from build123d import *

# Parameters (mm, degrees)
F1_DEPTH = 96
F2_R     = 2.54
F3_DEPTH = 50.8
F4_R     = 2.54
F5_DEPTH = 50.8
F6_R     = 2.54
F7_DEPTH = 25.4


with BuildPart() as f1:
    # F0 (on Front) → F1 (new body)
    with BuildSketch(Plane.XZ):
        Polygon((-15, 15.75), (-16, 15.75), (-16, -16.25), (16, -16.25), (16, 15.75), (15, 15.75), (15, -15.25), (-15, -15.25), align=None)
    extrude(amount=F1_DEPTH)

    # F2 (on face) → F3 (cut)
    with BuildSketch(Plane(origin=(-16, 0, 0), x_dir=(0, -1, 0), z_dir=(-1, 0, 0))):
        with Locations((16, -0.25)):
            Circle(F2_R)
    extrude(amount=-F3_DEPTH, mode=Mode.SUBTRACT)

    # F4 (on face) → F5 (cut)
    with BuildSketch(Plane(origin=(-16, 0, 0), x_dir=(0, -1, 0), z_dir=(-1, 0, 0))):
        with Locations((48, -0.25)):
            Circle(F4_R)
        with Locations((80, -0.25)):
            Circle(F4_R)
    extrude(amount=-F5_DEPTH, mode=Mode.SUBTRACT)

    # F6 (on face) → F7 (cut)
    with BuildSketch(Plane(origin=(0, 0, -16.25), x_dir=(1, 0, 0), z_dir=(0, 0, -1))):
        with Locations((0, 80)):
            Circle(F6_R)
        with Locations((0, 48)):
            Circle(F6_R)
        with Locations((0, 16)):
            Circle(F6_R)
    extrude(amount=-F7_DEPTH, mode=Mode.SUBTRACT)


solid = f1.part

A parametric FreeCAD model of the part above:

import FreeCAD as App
import Part
import Sketcher
from FreeCAD import Vector

doc = App.newDocument("Part")
body = doc.addObject("PartDesign::Body", "Body")

sketch1 = body.newObject("Sketcher::SketchObject", "Sketch")
sketch1.AttachmentSupport = (doc.getObject("XZ_Plane"), [""])
sketch1.MapMode = "FlatFace"
sketch1.addGeometry(Part.LineSegment(Vector(-15, 15.8, 0), Vector(-16, 15.8, 0)), False)
sketch1.addGeometry(Part.LineSegment(Vector(-16, 15.8, 0), Vector(-16, -16.2, 0)), False)
sketch1.addGeometry(Part.LineSegment(Vector(-16, -16.2, 0), Vector(16, -16.2, 0)), False)
sketch1.addGeometry(Part.LineSegment(Vector(16, -16.2, 0), Vector(16, 15.8, 0)), False)
sketch1.addGeometry(Part.LineSegment(Vector(16, 15.8, 0), Vector(15, 15.8, 0)), False)
sketch1.addGeometry(Part.LineSegment(Vector(15, 15.8, 0), Vector(15, -15.2, 0)), False)
sketch1.addGeometry(Part.LineSegment(Vector(15, -15.2, 0), Vector(-15, -15.2, 0)), False)
sketch1.addGeometry(Part.LineSegment(Vector(-15, -15.2, 0), Vector(-15, 15.8, 0)), False)
sketch1.addConstraint(Sketcher.Constraint("Coincident", 0, 2, 1, 1))
sketch1.addConstraint(Sketcher.Constraint("Coincident", 1, 2, 2, 1))
sketch1.addConstraint(Sketcher.Constraint("Coincident", 2, 2, 3, 1))
sketch1.addConstraint(Sketcher.Constraint("Coincident", 3, 2, 4, 1))
sketch1.addConstraint(Sketcher.Constraint("Coincident", 4, 2, 5, 1))
sketch1.addConstraint(Sketcher.Constraint("Coincident", 5, 2, 6, 1))
sketch1.addConstraint(Sketcher.Constraint("Coincident", 6, 2, 7, 1))
sketch1.addConstraint(Sketcher.Constraint("Coincident", 7, 2, 0, 1))
sketch1.addConstraint(Sketcher.Constraint("Horizontal", 0))
sketch1.addConstraint(Sketcher.Constraint("Vertical", 1))
sketch1.addConstraint(Sketcher.Constraint("Horizontal", 2))
sketch1.addConstraint(Sketcher.Constraint("Vertical", 3))
sketch1.addConstraint(Sketcher.Constraint("Horizontal", 4))
sketch1.addConstraint(Sketcher.Constraint("Vertical", 5))
sketch1.addConstraint(Sketcher.Constraint("Horizontal", 6))
sketch1.addConstraint(Sketcher.Constraint("Vertical", 7))
sketch1.addConstraint(Sketcher.Constraint("Symmetric", 0, 2, 3, 2, -2))
sketch1.addConstraint(Sketcher.Constraint("Equal", 0, 4))
sketch1.addConstraint(Sketcher.Constraint("Equal", 2, 1))
sketch1.addConstraint(Sketcher.Constraint("DistanceX", 0, 2, 0, 1, 1.0))
sketch1.addConstraint(Sketcher.Constraint("DistanceX", 2, 1, 2, 2, 32.0))
sketch1.addConstraint(Sketcher.Constraint("DistanceY", 5, 2, 5, 1, 31.0))
sketch1.addConstraint(Sketcher.Constraint("DistanceY", -1, 1, 0, 2, 15.75))
pad1 = body.newObject("PartDesign::Pad", "Pad")
pad1.Profile = sketch1
pad1.Length = 96

sketch2 = body.newObject("Sketcher::SketchObject", "Sketch001")
sketch2.AttachmentSupport = (doc.getObject("YZ_Plane"), [""])
sketch2.MapMode = "FlatFace"
sketch2.AttachmentOffset = App.Placement(Vector(0, 0, -16), App.Rotation())
sketch2.addGeometry(Part.Circle(Vector(-16, -0.2, 0), Vector(0, 0, 1), 2.5), False)
sketch2.addConstraint(Sketcher.Constraint("Diameter", 0, 5.08))
sketch2.addConstraint(Sketcher.Constraint("DistanceX", 0, 3, -1, 1, 16.0))
sketch2.addConstraint(Sketcher.Constraint("DistanceY", 0, 3, -1, 1, 0.25))
pocket1 = body.newObject("PartDesign::Pocket", "Pocket")
pocket1.Profile = sketch2
pocket1.Length = 50.8
pocket1.Reversed = True

sketch3 = body.newObject("Sketcher::SketchObject", "Sketch002")
sketch3.AttachmentSupport = (doc.getObject("YZ_Plane"), [""])
sketch3.MapMode = "FlatFace"
sketch3.AttachmentOffset = App.Placement(Vector(0, 0, -16), App.Rotation())
sketch3.addGeometry(Part.Circle(Vector(-48, -0.2, 0), Vector(0, 0, 1), 2.5), False)
sketch3.addGeometry(Part.Circle(Vector(-80, -0.2, 0), Vector(0, 0, 1), 2.5), False)
sketch3.addConstraint(Sketcher.Constraint("Equal", 0, 1))
sketch3.addConstraint(Sketcher.Constraint("Horizontal", 0, 3, 1, 3))
sketch3.addConstraint(Sketcher.Constraint("Diameter", 0, 5.08))
sketch3.addConstraint(Sketcher.Constraint("DistanceX", 0, 3, -1, 1, 48.0))
sketch3.addConstraint(Sketcher.Constraint("DistanceX", 1, 3, -1, 1, 80.0))
sketch3.addConstraint(Sketcher.Constraint("DistanceY", 0, 3, -1, 1, 0.25))
pocket2 = body.newObject("PartDesign::Pocket", "Pocket001")
pocket2.Profile = sketch3
pocket2.Length = 50.8
pocket2.Reversed = True

sketch4 = body.newObject("Sketcher::SketchObject", "Sketch003")
sketch4.AttachmentSupport = (doc.getObject("XY_Plane"), [""])
sketch4.MapMode = "FlatFace"
sketch4.AttachmentOffset = App.Placement(Vector(0, 0, -16.25), App.Rotation())
sketch4.addGeometry(Part.Circle(Vector(0, -80, 0), Vector(0, 0, 1), 2.5), False)
sketch4.addGeometry(Part.Circle(Vector(0, -48, 0), Vector(0, 0, 1), 2.5), False)
sketch4.addGeometry(Part.Circle(Vector(0, -16, 0), Vector(0, 0, 1), 2.5), False)
sketch4.addConstraint(Sketcher.Constraint("Equal", 0, 1))
sketch4.addConstraint(Sketcher.Constraint("Equal", 1, 2))
sketch4.addConstraint(Sketcher.Constraint("PointOnObject", 0, 3, -2))
sketch4.addConstraint(Sketcher.Constraint("PointOnObject", 1, 3, -2))
sketch4.addConstraint(Sketcher.Constraint("PointOnObject", 2, 3, -2))
sketch4.addConstraint(Sketcher.Constraint("Diameter", 0, 5.08))
sketch4.addConstraint(Sketcher.Constraint("DistanceY", 0, 3, -1, 1, 80.0))
sketch4.addConstraint(Sketcher.Constraint("DistanceY", 1, 3, -1, 1, 48.0))
sketch4.addConstraint(Sketcher.Constraint("DistanceY", 2, 3, -1, 1, 16.0))
pocket3 = body.newObject("PartDesign::Pocket", "Pocket002")
pocket3.Profile = sketch4
pocket3.Length = 25.4
pocket3.Reversed = True

doc.recompute()
